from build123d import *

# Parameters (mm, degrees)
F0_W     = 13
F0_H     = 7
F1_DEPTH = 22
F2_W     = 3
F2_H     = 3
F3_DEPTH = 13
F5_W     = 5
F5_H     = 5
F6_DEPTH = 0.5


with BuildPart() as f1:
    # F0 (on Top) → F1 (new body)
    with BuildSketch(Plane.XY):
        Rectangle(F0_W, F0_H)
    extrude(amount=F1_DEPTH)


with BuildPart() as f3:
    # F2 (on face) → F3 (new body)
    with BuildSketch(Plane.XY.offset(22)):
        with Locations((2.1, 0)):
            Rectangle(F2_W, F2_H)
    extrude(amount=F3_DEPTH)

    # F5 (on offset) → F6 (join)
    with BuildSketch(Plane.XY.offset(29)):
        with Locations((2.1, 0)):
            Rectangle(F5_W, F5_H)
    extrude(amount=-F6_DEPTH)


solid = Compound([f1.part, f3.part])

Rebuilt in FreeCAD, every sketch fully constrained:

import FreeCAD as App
import Part
import Sketcher
from FreeCAD import Vector


def add_polygon(sketch, points):
    """Adds a closed chain of lines whose ends are joined by coincident constraints."""
    first, n = sketch.GeometryCount, len(points)
    for a, b in zip(points, points[1:] + points[:1]):
        sketch.addGeometry(Part.LineSegment(App.Vector(*a, 0), App.Vector(*b, 0)), False)
    for i in range(n):
        sketch.addConstraint(Sketcher.Constraint("Coincident", first + i, 2, first + (i + 1) % n, 1))

doc = App.newDocument("Part")
body = doc.addObject("PartDesign::Body", "Body")

# Sketch on XY plane
sketch1 = body.newObject("Sketcher::SketchObject", "Sketch")
sketch1.AttachmentSupport = (doc.getObject("XY_Plane"), [""])
sketch1.MapMode = "FlatFace"
add_polygon(sketch1, [(-6, 4), (-6, -4), (6, -4), (6, 4)])  # lines 0-3
sketch1.addConstraint([
    Sketcher.Constraint("Vertical", 0),
    Sketcher.Constraint("Horizontal", 1),
    Sketcher.Constraint("Vertical", 2),
    Sketcher.Constraint("Horizontal", 3),
    Sketcher.Constraint("Symmetric", 0, 2, 2, 2, -1, 1),
    Sketcher.Constraint("DistanceX", 1, 1, 1, 2, 13.0),
    Sketcher.Constraint("DistanceY", 0, 2, 0, 1, 7.0),
])
pad1 = body.newObject("PartDesign::Pad", "Pad")
pad1.Profile = sketch1
pad1.Length = 22
body2 = doc.addObject("PartDesign::Body", "Body001")

# Sketch on XY plane
sketch2 = body2.newObject("Sketcher::SketchObject", "Sketch001")
sketch2.AttachmentSupport = (doc.getObject("XY_Plane001"), [""])
sketch2.MapMode = "FlatFace"
sketch2.AttachmentOffset = App.Placement(Vector(0, 0, 22), App.Rotation())
add_polygon(sketch2, [(0.6, 1.5), (0.6, -1.5), (3.6, -1.5), (3.6, 1.5)])  # lines 0-3
sketch2.addConstraint([
    Sketcher.Constraint("Vertical", 0),
    Sketcher.Constraint("Horizontal", 1),
    Sketcher.Constraint("Vertical", 2),
    Sketcher.Constraint("Horizontal", 3),
    Sketcher.Constraint("Equal", 3, 0),
    Sketcher.Constraint("DistanceX", 1, 1, 1, 2, 3.0),
    Sketcher.Constraint("DistanceX", -1, 1, 0, 2, 0.6),
    Sketcher.Constraint("DistanceY", 0, 2, -1, 1, 1.5),
])
pad2 = body2.newObject("PartDesign::Pad", "Pad001")
pad2.Profile = sketch2
pad2.Length = 13

# Sketch on XY plane
sketch3 = body2.newObject("Sketcher::SketchObject", "Sketch002")
sketch3.AttachmentSupport = (doc.getObject("XY_Plane001"), [""])
sketch3.MapMode = "FlatFace"
sketch3.AttachmentOffset = App.Placement(Vector(0, 0, 29), App.Rotation())
add_polygon(sketch3, [(0, 2), (0, -2), (5, -2), (5, 2)])  # lines 0-3
sketch3.addConstraint([
    Sketcher.Constraint("Vertical", 0),
    Sketcher.Constraint("Horizontal", 1),
    Sketcher.Constraint("Vertical", 2),
    Sketcher.Constraint("Horizontal", 3),
    Sketcher.Constraint("Equal", 3, 0),
    Sketcher.Constraint("DistanceX", 1, 1, 1, 2, 5.0),
    Sketcher.Constraint("DistanceX", 0, 2, -1, 1, 0.4),
    Sketcher.Constraint("DistanceY", 0, 2, -1, 1, 2.5),
])
pad3 = body2.newObject("PartDesign::Pad", "Pad002")
pad3.Profile = sketch3
pad3.Length = 0.5
pad3.Reversed = True

doc.recompute()
